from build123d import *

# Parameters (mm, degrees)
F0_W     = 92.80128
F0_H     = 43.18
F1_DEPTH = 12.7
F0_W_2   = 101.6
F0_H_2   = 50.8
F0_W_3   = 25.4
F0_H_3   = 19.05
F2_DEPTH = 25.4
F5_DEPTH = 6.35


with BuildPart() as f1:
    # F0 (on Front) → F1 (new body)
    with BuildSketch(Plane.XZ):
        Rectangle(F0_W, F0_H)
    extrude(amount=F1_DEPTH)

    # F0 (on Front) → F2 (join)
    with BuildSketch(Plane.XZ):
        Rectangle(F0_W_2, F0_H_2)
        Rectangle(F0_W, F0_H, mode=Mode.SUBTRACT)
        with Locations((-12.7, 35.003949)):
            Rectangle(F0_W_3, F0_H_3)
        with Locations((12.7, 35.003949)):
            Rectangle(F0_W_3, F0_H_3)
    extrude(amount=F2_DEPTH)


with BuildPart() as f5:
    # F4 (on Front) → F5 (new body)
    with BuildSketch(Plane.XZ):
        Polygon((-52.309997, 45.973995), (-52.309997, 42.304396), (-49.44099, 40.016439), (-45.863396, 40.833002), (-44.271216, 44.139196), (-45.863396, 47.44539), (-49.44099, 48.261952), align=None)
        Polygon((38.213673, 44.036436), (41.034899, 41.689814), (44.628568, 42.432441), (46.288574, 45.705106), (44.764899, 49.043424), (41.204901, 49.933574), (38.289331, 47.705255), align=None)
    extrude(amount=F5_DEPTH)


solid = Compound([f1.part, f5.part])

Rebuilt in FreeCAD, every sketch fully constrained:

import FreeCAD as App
import Part
import Sketcher

V = App.Vector
Q = App.Units.Quantity

doc = App.newDocument("Part")
body = doc.addObject("PartDesign::Body", "Body")
body.AllowCompound = True

# Sketch on XZ plane
sketch1 = body.newObject("Sketcher::SketchObject", "Sketch")
sketch1.AttachmentSupport = (doc.getObject("XZ_Plane"), [""])
sketch1.MapMode = "FlatFace"
sketch1.addGeometry([
    Part.LineSegment(V(-46, 22, 0), V(-46, -22, 0)),
    Part.LineSegment(V(-46, -22, 0), V(46, -22, 0)),
    Part.LineSegment(V(46, -22, 0), V(46, 22, 0)),
    Part.LineSegment(V(46, 22, 0), V(-46, 22, 0)),
], False)
sketch1.addConstraint([
    Sketcher.Constraint("Coincident", 0, 2, 1, 1),
    Sketcher.Constraint("Coincident", 1, 2, 2, 1),
    Sketcher.Constraint("Coincident", 2, 2, 3, 1),
    Sketcher.Constraint("Coincident", 3, 2, 0, 1),
    Sketcher.Constraint("Vertical", 0),
    Sketcher.Constraint("Horizontal", 1),
    Sketcher.Constraint("Vertical", 2),
    Sketcher.Constraint("Horizontal", 3),
    Sketcher.Constraint("Symmetric", 0, 2, 2, 2, -1, 1),
    Sketcher.Constraint("DistanceY", 0, 2, 0, 1, Q("1.7 in")),
    Sketcher.Constraint("DistanceX", 1, 1, 1, 2, 92.80128),
])
pad1 = body.newObject("PartDesign::Pad", "Pad")
pad1.Profile = sketch1
pad1.Length = Q("0.5 in")

# Sketch on XZ plane
sketch2 = body.newObject("Sketcher::SketchObject", "Sketch001")
sketch2.AttachmentSupport = (doc.getObject("XZ_Plane"), [""])
sketch2.MapMode = "FlatFace"
sketch2.addGeometry([
    Part.LineSegment(V(-51, 25, 0), V(-51, -25, 0)),  # 0
    Part.LineSegment(V(-51, -25, 0), V(51, -25, 0)),  # 1
    Part.LineSegment(V(51, -25, 0), V(51, 25, 0)),  # 2
    Part.LineSegment(V(51, 25, 0), V(-51, 25, 0)),  # 3
    Part.LineSegment(V(46, -22, 0), V(-46, -22, 0)),  # 4
    Part.LineSegment(V(-46, -22, 0), V(-46, 22, 0)),  # 5
    Part.LineSegment(V(-46, 22, 0), V(46, 22, 0)),  # 6
    Part.LineSegment(V(46, 22, 0), V(46, -22, 0)),  # 7
    Part.LineSegment(V(-25, 45, 0), V(-25, 25, 0)),  # 8
    Part.LineSegment(V(-25, 25, 0), V(25, 25, 0)),  # 9
    Part.LineSegment(V(25, 25, 0), V(25, 45, 0)),  # 10
    Part.LineSegment(V(25, 45, 0), V(-25, 45, 0)),  # 11
], False)
sketch2.addConstraint([
    Sketcher.Constraint("Coincident", 0, 2, 1, 1),
    Sketcher.Constraint("Coincident", 1, 2, 2, 1),
    Sketcher.Constraint("Coincident", 2, 2, 3, 1),
    Sketcher.Constraint("Coincident", 3, 2, 0, 1),
    Sketcher.Constraint("Coincident", 4, 2, 5, 1),
    Sketcher.Constraint("Coincident", 5, 2, 6, 1),
    Sketcher.Constraint("Coincident", 6, 2, 7, 1),
    Sketcher.Constraint("Coincident", 7, 2, 4, 1),
    Sketcher.Constraint("Coincident", 8, 2, 9, 1),
    Sketcher.Constraint("Coincident", 9, 2, 10, 1),
    Sketcher.Constraint("Coincident", 10, 2, 11, 1),
    Sketcher.Constraint("Coincident", 11, 2, 8, 1),
    Sketcher.Constraint("Vertical", 0),
    Sketcher.Constraint("Horizontal", 1),
    Sketcher.Constraint("Vertical", 2),
    Sketcher.Constraint("Horizontal", 3),
    Sketcher.Constraint("Horizontal", 4),
    Sketcher.Constraint("Vertical", 5),
    Sketcher.Constraint("Horizontal", 6),
    Sketcher.Constraint("Vertical", 7),
    Sketcher.Constraint("Vertical", 8),
    Sketcher.Constraint("Horizontal", 9),
    Sketcher.Constraint("Vertical", 10),
    Sketcher.Constraint("Horizontal", 11),
    Sketcher.Constraint("Symmetric", 0, 2, 2, 2, -1, 1),
    Sketcher.Constraint("Symmetric", 4, 2, 6, 2, -1, 1),
    Sketcher.Constraint("Equal", 11, 0),
    Sketcher.Constraint("DistanceX", 1, 1, 1, 2, Q("4 in")),
    Sketcher.Constraint("DistanceX", 9, 1, 9, 2, Q("2 in")),
    Sketcher.Constraint("DistanceY", 5, 1, 5, 2, Q("1.7 in")),
    Sketcher.Constraint("DistanceX", 8, 2, -1, 1, Q("1 in")),
    Sketcher.Constraint("DistanceY", 8, 2, 8, 1, Q("0.75 in")),
    Sketcher.Constraint("DistanceX", 4, 2, 4, 1, 92.80128),
    Sketcher.Constraint("DistanceY", -1, 1, 8, 2, 25.478949),
])
pad2 = body.newObject("PartDesign::Pad", "Pad001")
pad2.Profile = sketch2
pad2.Length = Q("1 in")
body2 = doc.addObject("PartDesign::Body", "Body001")
body2.AllowCompound = True

# Sketch on XZ plane
sketch3 = body2.newObject("Sketcher::SketchObject", "Sketch002")
sketch3.AttachmentSupport = (doc.getObject("XZ_Plane001"), [""])
sketch3.MapMode = "FlatFace"
sketch3.addGeometry([
    Part.LineSegment(V(-52.3, 46, 0), V(-52.3, 42.3, 0)),  # 0
    Part.LineSegment(V(-52.3, 42.3, 0), V(-49.4, 40, 0)),  # 1
    Part.LineSegment(V(-49.4, 40, 0), V(-45.9, 40.8, 0)),  # 2
    Part.LineSegment(V(-45.9, 40.8, 0), V(-44.3, 44.1, 0)),  # 3
    Part.LineSegment(V(-44.3, 44.1, 0), V(-45.9, 47.4, 0)),  # 4
    Part.LineSegment(V(-45.9, 47.4, 0), V(-49.4, 48.3, 0)),  # 5
    Part.LineSegment(V(-49.4, 48.3, 0), V(-52.3, 46, 0)),  # 6
    Part.LineSegment(V(38.2, 44, 0), V(41, 41.7, 0)),  # 7
    Part.LineSegment(V(41, 41.7, 0), V(44.6, 42.4, 0)),  # 8
    Part.LineSegment(V(44.6, 42.4, 0), V(46.3, 45.7, 0)),  # 9
    Part.LineSegment(V(46.3, 45.7, 0), V(44.8, 49, 0)),  # 10
    Part.LineSegment(V(44.8, 49, 0), V(41.2, 49.9, 0)),  # 11
    Part.LineSegment(V(41.2, 49.9, 0), V(38.3, 47.7, 0)),  # 12
    Part.LineSegment(V(38.3, 47.7, 0), V(38.2, 44, 0)),  # 13
], False)
sketch3.addConstraint([
    Sketcher.Constraint("Coincident", 0, 2, 1, 1),
    Sketcher.Constraint("Coincident", 1, 2, 2, 1),
    Sketcher.Constraint("Coincident", 2, 2, 3, 1),
    Sketcher.Constraint("Coincident", 3, 2, 4, 1),
    Sketcher.Constraint("Coincident", 4, 2, 5, 1),
    Sketcher.Constraint("Coincident", 5, 2, 6, 1),
    Sketcher.Constraint("Coincident", 6, 2, 0, 1),
    Sketcher.Constraint("Coincident", 7, 2, 8, 1),
    Sketcher.Constraint("Coincident", 8, 2, 9, 1),
    Sketcher.Constraint("Coincident", 9, 2, 10, 1),
    Sketcher.Constraint("Coincident", 10, 2, 11, 1),
    Sketcher.Constraint("Coincident", 11, 2, 12, 1),
    Sketcher.Constraint("Coincident", 12, 2, 13, 1),
    Sketcher.Constraint("Coincident", 13, 2, 7, 1),
    Sketcher.Constraint("Vertical", 0),
    Sketcher.Constraint("Vertical", 2, 2, 4, 2),
    Sketcher.Constraint("Vertical", 1, 2, 5, 2),
    Sketcher.Constraint("Equal", 1, 2),
    Sketcher.Constraint("Equal", 2, 3),
    Sketcher.Constraint("Equal", 3, 4),
    Sketcher.Constraint("Equal", 4, 5),
    Sketcher.Constraint("Equal", 5, 6),
    Sketcher.Constraint("Equal", 6, 7),
    Sketcher.Constraint("Equal", 7, 8),
    Sketcher.Constraint("Equal", 8, 9),
    Sketcher.Constraint("Equal", 9, 10),
    Sketcher.Constraint("Equal", 10, 11),
    Sketcher.Constraint("Equal", 11, 12),
    Sketcher.Constraint("Equal", 12, 13),
    Sketcher.Constraint("DistanceY", -1, 1, 6, 2, Q("1.8099998 in")),
    Sketcher.Constraint("DistanceY", 0, 2, 0, 1, 3.669599),
    Sketcher.Constraint("Distance", 2, 3.669599),
    Sketcher.Constraint("DistanceX", -1, 1, 7, 2, 41.034899),
    Sketcher.Constraint("DistanceX", -1, 1, 10, 2, 44.764899),
    Sketcher.Constraint("DistanceX", -1, 1, 11, 2, 41.204901),
    Sketcher.Constraint("DistanceX", 0, 2, 2, 2, 6.446601),
    Sketcher.Constraint("DistanceY", 1, 2, 8, 2, 2.416002),
    Sketcher.Constraint("DistanceX", 13, 2, 9, 2, 8.074901),
    Sketcher.Constraint("DistanceX", 1, 2, -1, 1, 49.44099),
    Sketcher.Constraint("DistanceY", -1, 1, 1, 2, 40.016439),
    Sketcher.Constraint("DistanceX", -1, 1, 12, 2, 38.289331),
    Sketcher.Constraint("DistanceY", 7, 2, 3, 2, 2.449382),
])
pad3 = body2.newObject("PartDesign::Pad", "Pad002")
pad3.Profile = sketch3
pad3.Length = Q("0.25 in")

doc.recompute()
